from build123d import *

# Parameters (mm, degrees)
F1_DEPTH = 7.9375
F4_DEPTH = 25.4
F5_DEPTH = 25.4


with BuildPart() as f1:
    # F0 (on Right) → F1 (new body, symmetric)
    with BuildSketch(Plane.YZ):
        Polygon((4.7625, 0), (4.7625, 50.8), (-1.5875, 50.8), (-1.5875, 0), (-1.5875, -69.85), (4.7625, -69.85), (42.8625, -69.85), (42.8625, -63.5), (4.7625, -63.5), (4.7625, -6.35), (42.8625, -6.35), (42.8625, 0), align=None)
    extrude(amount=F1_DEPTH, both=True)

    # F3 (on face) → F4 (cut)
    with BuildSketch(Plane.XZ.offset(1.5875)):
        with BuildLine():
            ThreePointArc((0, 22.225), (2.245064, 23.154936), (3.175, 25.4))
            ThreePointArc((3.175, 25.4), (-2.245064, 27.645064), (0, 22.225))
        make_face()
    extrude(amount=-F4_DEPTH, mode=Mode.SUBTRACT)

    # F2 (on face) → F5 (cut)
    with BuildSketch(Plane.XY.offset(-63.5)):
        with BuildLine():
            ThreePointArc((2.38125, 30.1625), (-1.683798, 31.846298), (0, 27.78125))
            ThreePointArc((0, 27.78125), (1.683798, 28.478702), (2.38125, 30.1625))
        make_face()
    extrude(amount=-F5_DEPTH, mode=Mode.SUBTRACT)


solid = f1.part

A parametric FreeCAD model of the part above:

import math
import FreeCAD as App
import Part
import Sketcher
from FreeCAD import Vector
Q = App.Units.Quantity


def add_polygon(sketch, points):
    """Adds a closed chain of lines whose ends are joined by coincident constraints."""
    first, n = sketch.GeometryCount, len(points)
    for a, b in zip(points, points[1:] + points[:1]):
        sketch.addGeometry(Part.LineSegment(App.Vector(*a, 0), App.Vector(*b, 0)), False)
    for i in range(n):
        sketch.addConstraint(Sketcher.Constraint("Coincident", first + i, 2, first + (i + 1) % n, 1))

doc = App.newDocument("Part")
params = doc.addObject("Spreadsheet::Sheet", "Params")
for row, (alias, value) in enumerate([
    ("sketch1_height", "2 in"),
    ("sketch1_width", "1.5 in"),
    ("sketch1_width2", "0.25 in"),
    ("sketch1_height2", "4.75 in"),
    ("pad1_length", "0.625 in"),
    ("sketch2_radius", "0.125 in"),
    ("pocket1_length", "1 in"),
    ("sketch3_radius", "0.09375 in"),
    ("pocket2_length", "1 in"),
], start=1):
    params.set(f"A{row}", alias)
    params.set(f"B{row}", "=" + value)
    params.setAlias(f"B{row}", alias)

body = doc.addObject("PartDesign::Body", "Body")

sketch1 = doc.addObject("Sketcher::SketchObject", "Sketch")
body.addObject(sketch1)
sketch1.AttachmentSupport = (doc.YZ_Plane, [""])
sketch1.MapMode = "FlatFace"
add_polygon(sketch1, [(5, 0), (5, 51), (-2, 51), (-2, -70), (43, -70), (43, -64), (5, -64), (5, -6), (43, -6), (43, 0)])
sketch1.addConstraint(Sketcher.Constraint("Vertical", 0))
sketch1.addConstraint(Sketcher.Constraint("Horizontal", 1))
sketch1.addConstraint(Sketcher.Constraint("Vertical", 2))
sketch1.addConstraint(Sketcher.Constraint("Horizontal", 3))
sketch1.addConstraint(Sketcher.Constraint("Vertical", 4))
sketch1.addConstraint(Sketcher.Constraint("Horizontal", 5))
sketch1.addConstraint(Sketcher.Constraint("Vertical", 6))
sketch1.addConstraint(Sketcher.Constraint("Horizontal", 7))
sketch1.addConstraint(Sketcher.Constraint("Vertical", 8))
sketch1.addConstraint(Sketcher.Constraint("Horizontal", 9))
sketch1.addConstraint(Sketcher.Constraint("PointOnObject", 8, 2, -1))
sketch1.addConstraint(Sketcher.Constraint("Vertical", 0, 2, 5, 2))
sketch1.addConstraint(Sketcher.Constraint("Vertical", 4, 2, 7, 2))
sketch1.addConstraint(Sketcher.Constraint("Equal", 1, 4))
sketch1.addConstraint(Sketcher.Constraint("Equal", 4, 8))
sketch1.addConstraint(Sketcher.Constraint("DistanceY", 0, 1, 0, 2, Q("2 in")))
sketch1.addConstraint(Sketcher.Constraint("DistanceX", 5, 2, 5, 1, Q("1.5 in")))
sketch1.addConstraint(Sketcher.Constraint("DistanceX", 1, 2, 1, 1, Q("0.25 in")))
sketch1.addConstraint(Sketcher.Constraint("DistanceY", 2, 2, 2, 1, Q("4.75 in")))
sketch1.addConstraint(Sketcher.Constraint("DistanceX", -1, 1, 0, 2, Q("0.1875 in")))
sketch1.setExpression("Constraints[25]", "Params.sketch1_height")
sketch1.setExpression("Constraints[26]", "Params.sketch1_width")
sketch1.setExpression("Constraints[27]", "Params.sketch1_width2")
sketch1.setExpression("Constraints[28]", "Params.sketch1_height2")
pad1 = doc.addObject("PartDesign::Pad", "Pad")
body.addObject(pad1)
pad1.Profile = sketch1
pad1.setExpression("Length", "Params.pad1_length")
pad1.Midplane = True

sketch2 = doc.addObject("Sketcher::SketchObject", "Sketch001")
body.addObject(sketch2)
sketch2.AttachmentSupport = (doc.XZ_Plane, [""])
sketch2.MapMode = "FlatFace"
sketch2.AttachmentOffset = App.Placement(Vector(0, 0, 0.0625 * 25.4), App.Rotation())
sketch2.addGeometry(Part.ArcOfCircle(Part.Circle(Vector(0, 25.4, 0), Vector(0, 0, 1), 3.2), math.radians(-90), math.radians(0)), False)
sketch2.addGeometry(Part.ArcOfCircle(Part.Circle(Vector(0, 25.4, 0), Vector(0, 0, 1), 3.2), math.radians(0), math.radians(270)), False)
sketch2.addConstraint(Sketcher.Constraint("Tangent", 0, 1, 1, 2))
sketch2.addConstraint(Sketcher.Constraint("Coincident", 1, 1, 0, 2))
sketch2.addConstraint(Sketcher.Constraint("PointOnObject", 0, 3, -2))
sketch2.addConstraint(Sketcher.Constraint("PointOnObject", 0, 1, -2))
sketch2.addConstraint(Sketcher.Constraint("Horizontal", 0, 3, 1, 1))
sketch2.addConstraint(Sketcher.Constraint("DistanceY", -1, 1, 0, 3, Q("1 in")))
sketch2.addConstraint(Sketcher.Constraint("Radius", 0, Q("0.125 in")))
sketch2.setExpression("Constraints[6]", "Params.sketch2_radius")
pocket1 = doc.addObject("PartDesign::Pocket", "Pocket")
body.addObject(pocket1)
pocket1.Profile = sketch2
pocket1.setExpression("Length", "Params.pocket1_length")

sketch3 = doc.addObject("Sketcher::SketchObject", "Sketch002")
body.addObject(sketch3)
sketch3.AttachmentSupport = (doc.XY_Plane, [""])
sketch3.MapMode = "FlatFace"
sketch3.AttachmentOffset = App.Placement(Vector(0, 0, -2.5 * 25.4), App.Rotation())
sketch3.addGeometry(Part.ArcOfCircle(Part.Circle(Vector(0, 30.2, 0), Vector(0, 0, 1), 2.4), math.radians(0), math.radians(270)), False)
sketch3.addGeometry(Part.ArcOfCircle(Part.Circle(Vector(0, 30.2, 0), Vector(0, 0, 1), 2.4), math.radians(-90), math.radians(0)), False)
sketch3.addConstraint(Sketcher.Constraint("Tangent", 0, 1, 1, 2))
sketch3.addConstraint(Sketcher.Constraint("Coincident", 1, 1, 0, 2))
sketch3.addConstraint(Sketcher.Constraint("PointOnObject", 0, 3, -2))
sketch3.addConstraint(Sketcher.Constraint("PointOnObject", 1, 1, -2))
sketch3.addConstraint(Sketcher.Constraint("Horizontal", 1, 3, 0, 1))
sketch3.addConstraint(Sketcher.Constraint("Radius", 0, Q("0.09375 in")))
sketch3.addConstraint(Sketcher.Constraint("DistanceY", -1, 1, 0, 3, Q("1.1875 in")))
sketch3.setExpression("Constraints[5]", "Params.sketch3_radius")
pocket2 = doc.addObject("PartDesign::Pocket", "Pocket001")
body.addObject(pocket2)
pocket2.Profile = sketch3
pocket2.setExpression("Length", "Params.pocket2_length")

doc.recompute()
